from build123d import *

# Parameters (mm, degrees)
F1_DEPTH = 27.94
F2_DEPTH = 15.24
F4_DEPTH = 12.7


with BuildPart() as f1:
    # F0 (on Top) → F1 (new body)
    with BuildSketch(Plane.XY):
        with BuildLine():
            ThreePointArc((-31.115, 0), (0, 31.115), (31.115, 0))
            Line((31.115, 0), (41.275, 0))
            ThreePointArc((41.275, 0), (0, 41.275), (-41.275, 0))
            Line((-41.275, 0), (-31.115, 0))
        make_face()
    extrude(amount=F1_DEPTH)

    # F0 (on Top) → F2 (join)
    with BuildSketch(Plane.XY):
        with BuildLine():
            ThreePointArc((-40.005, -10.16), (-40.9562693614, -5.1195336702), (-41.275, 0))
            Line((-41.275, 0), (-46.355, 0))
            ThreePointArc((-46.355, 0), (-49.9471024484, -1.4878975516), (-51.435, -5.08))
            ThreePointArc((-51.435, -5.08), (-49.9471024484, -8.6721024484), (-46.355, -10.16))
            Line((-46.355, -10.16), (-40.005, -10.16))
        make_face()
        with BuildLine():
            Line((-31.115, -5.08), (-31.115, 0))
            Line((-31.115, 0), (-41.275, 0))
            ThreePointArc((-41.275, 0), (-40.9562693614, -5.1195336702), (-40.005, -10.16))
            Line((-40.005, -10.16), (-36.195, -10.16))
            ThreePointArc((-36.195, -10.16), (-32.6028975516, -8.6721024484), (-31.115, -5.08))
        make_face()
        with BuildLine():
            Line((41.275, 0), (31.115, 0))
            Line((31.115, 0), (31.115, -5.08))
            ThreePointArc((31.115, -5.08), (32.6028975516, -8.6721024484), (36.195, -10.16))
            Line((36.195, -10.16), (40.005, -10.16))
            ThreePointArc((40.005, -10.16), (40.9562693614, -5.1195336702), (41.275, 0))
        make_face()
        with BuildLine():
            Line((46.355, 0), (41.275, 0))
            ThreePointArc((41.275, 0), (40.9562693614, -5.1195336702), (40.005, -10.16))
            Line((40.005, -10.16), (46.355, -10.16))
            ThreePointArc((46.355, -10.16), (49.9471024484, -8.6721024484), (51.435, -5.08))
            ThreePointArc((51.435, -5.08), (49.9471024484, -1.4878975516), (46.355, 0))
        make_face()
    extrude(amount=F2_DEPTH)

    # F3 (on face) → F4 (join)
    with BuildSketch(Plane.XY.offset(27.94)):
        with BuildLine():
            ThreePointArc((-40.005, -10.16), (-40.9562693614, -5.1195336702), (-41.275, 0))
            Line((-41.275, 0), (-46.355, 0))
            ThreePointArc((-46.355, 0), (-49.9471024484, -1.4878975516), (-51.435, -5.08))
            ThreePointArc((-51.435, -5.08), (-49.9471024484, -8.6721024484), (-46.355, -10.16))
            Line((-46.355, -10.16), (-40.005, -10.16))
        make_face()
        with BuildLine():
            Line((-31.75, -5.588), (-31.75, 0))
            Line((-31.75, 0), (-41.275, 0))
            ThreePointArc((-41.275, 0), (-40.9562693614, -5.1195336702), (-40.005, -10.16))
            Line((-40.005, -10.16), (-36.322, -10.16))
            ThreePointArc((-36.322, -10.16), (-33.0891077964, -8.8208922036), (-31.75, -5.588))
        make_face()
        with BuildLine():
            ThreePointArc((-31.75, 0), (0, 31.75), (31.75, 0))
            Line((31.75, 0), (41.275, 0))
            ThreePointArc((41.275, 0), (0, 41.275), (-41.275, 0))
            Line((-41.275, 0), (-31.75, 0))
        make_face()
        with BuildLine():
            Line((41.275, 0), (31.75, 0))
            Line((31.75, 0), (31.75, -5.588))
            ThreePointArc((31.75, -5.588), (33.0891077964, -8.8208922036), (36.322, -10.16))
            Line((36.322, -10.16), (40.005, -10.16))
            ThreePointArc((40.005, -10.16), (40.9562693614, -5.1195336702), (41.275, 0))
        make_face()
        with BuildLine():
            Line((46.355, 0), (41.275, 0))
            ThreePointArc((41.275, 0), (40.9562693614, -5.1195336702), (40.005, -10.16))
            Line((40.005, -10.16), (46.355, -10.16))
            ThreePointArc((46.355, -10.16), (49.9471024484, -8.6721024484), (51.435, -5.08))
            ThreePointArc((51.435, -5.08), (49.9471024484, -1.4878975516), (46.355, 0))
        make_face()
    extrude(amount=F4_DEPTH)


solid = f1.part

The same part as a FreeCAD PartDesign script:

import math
import FreeCAD as App
import Part
import Sketcher

V = App.Vector
Q = App.Units.Quantity

doc = App.newDocument("Part")
body = doc.addObject("PartDesign::Body", "Body")

sketch1 = doc.addObject("Sketcher::SketchObject", "Sketch")
body.addObject(sketch1)
sketch1.AttachmentSupport = (doc.XY_Plane, [""])
sketch1.MapMode = "FlatFace"
sketch1.addGeometry(Part.ArcOfCircle(Part.Circle(V(0, 0, 0), V(0, 0, 1), 31), math.radians(0), math.radians(180)), False)
sketch1.addGeometry(Part.LineSegment(V(31, 0, 0), V(41, 0, 0)), False)
sketch1.addGeometry(Part.ArcOfCircle(Part.Circle(V(0, 0, 0), V(0, 0, 1), 41), math.radians(0), math.radians(180)), False)
sketch1.addGeometry(Part.LineSegment(V(-41, 0, 0), V(-31, 0, 0)), False)
sketch1.addConstraint(Sketcher.Constraint("Coincident", 0, 1, 1, 1))
sketch1.addConstraint(Sketcher.Constraint("Coincident", 1, 2, 2, 1))
sketch1.addConstraint(Sketcher.Constraint("Coincident", 2, 2, 3, 1))
sketch1.addConstraint(Sketcher.Constraint("Coincident", 3, 2, 0, 2))
sketch1.addConstraint(Sketcher.Constraint("Horizontal", 1))
sketch1.addConstraint(Sketcher.Constraint("Horizontal", 3))
sketch1.addConstraint(Sketcher.Constraint("Coincident", 0, 3, -1, 1))
sketch1.addConstraint(Sketcher.Constraint("Coincident", 2, 3, -1, 1))
sketch1.addConstraint(Sketcher.Constraint("PointOnObject", 0, 1, -1))
sketch1.addConstraint(Sketcher.Constraint("PointOnObject", 2, 2, -1))
sketch1.addConstraint(Sketcher.Constraint("DistanceX", 1, 1, 1, 2, Q("0.4 in")))
sketch1.addConstraint(Sketcher.Constraint("Radius", 0, Q("1.225 in")))
pad1 = doc.addObject("PartDesign::Pad", "Pad")
body.addObject(pad1)
pad1.Profile = sketch1
pad1.Length = Q("1.1 in")

sketch2 = doc.addObject("Sketcher::SketchObject", "Sketch001")
body.addObject(sketch2)
sketch2.AttachmentSupport = (doc.XY_Plane, [""])
sketch2.MapMode = "FlatFace"
sketch2.addGeometry(Part.ArcOfCircle(Part.Circle(V(-46, -5, 0), V(0, 0, 1), 5), math.radians(90), math.radians(180)), False)
sketch2.addGeometry(Part.ArcOfCircle(Part.Circle(V(-46, -5, 0), V(0, 0, 1), 5), math.radians(180), math.radians(270)), False)
sketch2.addGeometry(Part.LineSegment(V(-46, -10, 0), V(-36, -10, 0)), False)
sketch2.addGeometry(Part.ArcOfCircle(Part.Circle(V(-36, -5, 0), V(0, 0, 1), 5), math.radians(-90), math.radians(0)), False)
sketch2.addGeometry(Part.LineSegment(V(-31, -5, 0), V(-31, 0, 0)), False)
sketch2.addGeometry(Part.LineSegment(V(-31, 0, 0), V(-46, 0, 0)), False)
sketch2.addGeometry(Part.LineSegment(V(31, 0, 0), V(31, -5, 0)), False)
sketch2.addGeometry(Part.ArcOfCircle(Part.Circle(V(36, -5, 0), V(0, 0, 1), 5), math.radians(180), math.radians(270)), False)
sketch2.addGeometry(Part.LineSegment(V(36, -10, 0), V(46, -10, 0)), False)
sketch2.addGeometry(Part.ArcOfCircle(Part.Circle(V(46, -5, 0), V(0, 0, 1), 5), math.radians(-90), math.radians(0)), False)
sketch2.addGeometry(Part.ArcOfCircle(Part.Circle(V(46, -5, 0), V(0, 0, 1), 5), math.radians(0), math.radians(90)), False)
sketch2.addGeometry(Part.LineSegment(V(46, 0, 0), V(31, 0, 0)), False)
sketch2.addConstraint(Sketcher.Constraint("Tangent", 0, 2, 1, 1))
sketch2.addConstraint(Sketcher.Constraint("Tangent", 1, 2, 2, 1))
sketch2.addConstraint(Sketcher.Constraint("Tangent", 2, 2, 3, 1))
sketch2.addConstraint(Sketcher.Constraint("Tangent", 3, 2, 4, 1))
sketch2.addConstraint(Sketcher.Constraint("Coincident", 4, 2, 5, 1))
sketch2.addConstraint(Sketcher.Constraint("Tangent", 5, 2, 0, 1))
sketch2.addConstraint(Sketcher.Constraint("Tangent", 6, 2, 7, 1))
sketch2.addConstraint(Sketcher.Constraint("Tangent", 7, 2, 8, 1))
sketch2.addConstraint(Sketcher.Constraint("Tangent", 8, 2, 9, 1))
sketch2.addConstraint(Sketcher.Constraint("Tangent", 9, 2, 10, 1))
sketch2.addConstraint(Sketcher.Constraint("Tangent", 10, 2, 11, 1))
sketch2.addConstraint(Sketcher.Constraint("Coincident", 11, 2, 6, 1))
sketch2.addConstraint(Sketcher.Constraint("Horizontal", 2))
sketch2.addConstraint(Sketcher.Constraint("Vertical", 4))
sketch2.addConstraint(Sketcher.Constraint("Horizontal", 5))
sketch2.addConstraint(Sketcher.Constraint("Vertical", 6))
sketch2.addConstraint(Sketcher.Constraint("Horizontal", 8))
sketch2.addConstraint(Sketcher.Constraint("Horizontal", 11))
sketch2.addConstraint(Sketcher.Constraint("Equal", 0, 1))
sketch2.addConstraint(Sketcher.Constraint("Equal", 1, 3))
sketch2.addConstraint(Sketcher.Constraint("Equal", 3, 7))
sketch2.addConstraint(Sketcher.Constraint("Equal", 7, 9))
sketch2.addConstraint(Sketcher.Constraint("Equal", 9, 10))
sketch2.addConstraint(Sketcher.Constraint("Symmetric", 5, 2, 10, 2, -1, 1))
sketch2.addConstraint(Sketcher.Constraint("Symmetric", 3, 3, 7, 3, -2))
sketch2.addConstraint(Sketcher.Constraint("Horizontal", 10, 3, 0, 2))
sketch2.addConstraint(Sketcher.Constraint("Horizontal", 6, 2, 9, 2))
sketch2.addConstraint(Sketcher.Constraint("Radius", 0, Q("0.2 in")))
sketch2.addConstraint(Sketcher.Constraint("DistanceX", 2, 1, 2, 2, Q("0.4 in")))
sketch2.addConstraint(Sketcher.Constraint("DistanceX", 3, 3, 7, 3, Q("2.85 in")))
pad2 = doc.addObject("PartDesign::Pad", "Pad001")
body.addObject(pad2)
pad2.Profile = sketch2
pad2.Length = Q("0.6 in")

sketch3 = doc.addObject("Sketcher::SketchObject", "Sketch002")
body.addObject(sketch3)
sketch3.AttachmentSupport = (doc.XY_Plane, [""])
sketch3.MapMode = "FlatFace"
sketch3.AttachmentOffset = App.Placement(V(0, 0, 1.1 * 25.4), App.Rotation())
sketch3.addGeometry(Part.ArcOfCircle(Part.Circle(V(-46.4, -5.1, 0), V(0, 0, 1), 5.1), math.radians(90), math.radians(180)), False)
sketch3.addGeometry(Part.ArcOfCircle(Part.Circle(V(-46.4, -5.1, 0), V(0, 0, 1), 5.1), math.radians(180), math.radians(270)), False)
sketch3.addGeometry(Part.LineSegment(V(-46.4, -10.2, 0), V(-36.3, -10.2, 0)), False)
sketch3.addGeometry(Part.ArcOfCircle(Part.Circle(V(-36.3, -5.6, 0), V(0, 0, 1), 4.6), math.radians(-90), math.radians(0)), False)
sketch3.addGeometry(Part.LineSegment(V(-31.8, -5.6, 0), V(-31.8, 0, 0)), False)
sketch3.addGeometry(Part.ArcOfCircle(Part.Circle(V(0, 0, 0), V(0, 0, 1), 31.8), math.radians(0), math.radians(180)), False)
sketch3.addGeometry(Part.LineSegment(V(31.8, 0, 0), V(31.8, -5.6, 0)), False)
sketch3.addGeometry(Part.ArcOfCircle(Part.Circle(V(36.3, -5.6, 0), V(0, 0, 1), 4.6), math.radians(180), math.radians(270)), False)
sketch3.addGeometry(Part.LineSegment(V(36.3, -10.2, 0), V(46.4, -10.2, 0)), False)
sketch3.addGeometry(Part.ArcOfCircle(Part.Circle(V(46.4, -5.1, 0), V(0, 0, 1), 5.1), math.radians(-90), math.radians(0)), False)
sketch3.addGeometry(Part.ArcOfCircle(Part.Circle(V(46.4, -5.1, 0), V(0, 0, 1), 5.1), math.radians(0), math.radians(90)), False)
sketch3.addGeometry(Part.LineSegment(V(46.4, 0, 0), V(41.3, 0, 0)), False)
sketch3.addGeometry(Part.ArcOfCircle(Part.Circle(V(0, 0, 0), V(0, 0, 1), 41.3), math.radians(0), math.radians(180)), False)
sketch3.addGeometry(Part.LineSegment(V(-41.3, 0, 0), V(-46.4, 0, 0)), False)
sketch3.addConstraint(Sketcher.Constraint("Tangent", 0, 2, 1, 1))
sketch3.addConstraint(Sketcher.Constraint("Tangent", 1, 2, 2, 1))
sketch3.addConstraint(Sketcher.Constraint("Tangent", 2, 2, 3, 1))
sketch3.addConstraint(Sketcher.Constraint("Tangent", 3, 2, 4, 1))
sketch3.addConstraint(Sketcher.Constraint("Tangent", 4, 2, 5, 2))
sketch3.addConstraint(Sketcher.Constraint("Tangent", 5, 1, 6, 1))
sketch3.addConstraint(Sketcher.Constraint("Tangent", 6, 2, 7, 1))
sketch3.addConstraint(Sketcher.Constraint("Tangent", 7, 2, 8, 1))
sketch3.addConstraint(Sketcher.Constraint("Tangent", 8, 2, 9, 1))
sketch3.addConstraint(Sketcher.Constraint("Tangent", 9, 2, 10, 1))
sketch3.addConstraint(Sketcher.Constraint("Tangent", 10, 2, 11, 1))
sketch3.addConstraint(Sketcher.Constraint("Coincident", 11, 2, 12, 1))
sketch3.addConstraint(Sketcher.Constraint("Coincident", 12, 2, 13, 1))
sketch3.addConstraint(Sketcher.Constraint("Tangent", 13, 2, 0, 1))
sketch3.addConstraint(Sketcher.Constraint("Horizontal", 2))
sketch3.addConstraint(Sketcher.Constraint("Vertical", 4))
sketch3.addConstraint(Sketcher.Constraint("Vertical", 6))
sketch3.addConstraint(Sketcher.Constraint("Horizontal", 8))
sketch3.addConstraint(Sketcher.Constraint("Horizontal", 11))
sketch3.addConstraint(Sketcher.Constraint("Horizontal", 13))
sketch3.addConstraint(Sketcher.Constraint("Coincident", 5, 3, -1, 1))
sketch3.addConstraint(Sketcher.Constraint("Coincident", 12, 3, -1, 1))
sketch3.addConstraint(Sketcher.Constraint("Equal", 0, 1))
sketch3.addConstraint(Sketcher.Constraint("Equal", 3, 7))
sketch3.addConstraint(Sketcher.Constraint("Equal", 1, 9))
sketch3.addConstraint(Sketcher.Constraint("Equal", 9, 10))
sketch3.addConstraint(Sketcher.Constraint("Symmetric", 10, 2, 13, 2, -1, 1))
sketch3.addConstraint(Sketcher.Constraint("PointOnObject", 10, 2, -1))
sketch3.addConstraint(Sketcher.Constraint("Horizontal", 10, 3, 0, 2))
sketch3.addConstraint(Sketcher.Constraint("Horizontal", 0, 2, 9, 2))
sketch3.addConstraint(Sketcher.Constraint("Radius", 0, Q("0.2 in")))
sketch3.addConstraint(Sketcher.Constraint("Radius", 3, Q("0.18 in")))
sketch3.addConstraint(Sketcher.Constraint("Radius", 5, Q("1.25 in")))
sketch3.addConstraint(Sketcher.Constraint("DistanceX", 11, 2, 11, 1, Q("0.2 in")))
sketch3.addConstraint(Sketcher.Constraint("Radius", 12, Q("1.625 in")))
pad3 = doc.addObject("PartDesign::Pad", "Pad002")
body.addObject(pad3)
pad3.Profile = sketch3
pad3.Length = Q("0.5 in")

doc.recompute()
